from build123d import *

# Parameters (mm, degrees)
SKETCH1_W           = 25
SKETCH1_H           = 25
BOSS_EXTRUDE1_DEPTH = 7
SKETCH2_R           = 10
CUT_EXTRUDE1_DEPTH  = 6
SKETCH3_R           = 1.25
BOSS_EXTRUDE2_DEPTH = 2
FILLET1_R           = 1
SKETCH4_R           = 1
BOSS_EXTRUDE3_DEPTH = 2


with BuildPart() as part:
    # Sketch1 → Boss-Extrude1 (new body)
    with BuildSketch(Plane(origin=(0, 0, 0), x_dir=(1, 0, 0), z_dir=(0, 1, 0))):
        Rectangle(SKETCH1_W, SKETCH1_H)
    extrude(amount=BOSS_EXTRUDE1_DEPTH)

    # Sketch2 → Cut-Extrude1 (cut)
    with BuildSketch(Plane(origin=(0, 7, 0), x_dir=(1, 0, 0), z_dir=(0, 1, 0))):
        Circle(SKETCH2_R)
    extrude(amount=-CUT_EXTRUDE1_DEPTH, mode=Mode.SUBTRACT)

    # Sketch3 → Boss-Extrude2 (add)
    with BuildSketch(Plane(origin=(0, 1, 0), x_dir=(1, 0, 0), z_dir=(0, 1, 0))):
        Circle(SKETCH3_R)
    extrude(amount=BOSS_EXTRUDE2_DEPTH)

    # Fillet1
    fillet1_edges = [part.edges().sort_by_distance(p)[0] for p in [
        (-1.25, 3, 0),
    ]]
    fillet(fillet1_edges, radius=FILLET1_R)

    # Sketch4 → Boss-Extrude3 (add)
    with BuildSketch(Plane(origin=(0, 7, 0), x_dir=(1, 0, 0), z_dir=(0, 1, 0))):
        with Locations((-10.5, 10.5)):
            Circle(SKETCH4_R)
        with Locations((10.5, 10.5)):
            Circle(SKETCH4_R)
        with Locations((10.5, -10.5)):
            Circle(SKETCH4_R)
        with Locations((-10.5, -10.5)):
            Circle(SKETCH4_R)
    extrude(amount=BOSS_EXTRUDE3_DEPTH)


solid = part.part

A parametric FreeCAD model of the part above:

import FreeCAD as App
import Part
import Sketcher
from FreeCAD import Vector
Q = App.Units.Quantity


def edges_at(feature, points):
    """Names of the edges that pass closest to the given points."""
    edges = feature.Shape.Edges
    near = lambda p: min(range(len(edges)), key=lambda i: edges[i].distToShape(Part.Vertex(*p))[0])
    return sorted({f"Edge{near(p) + 1}" for p in points})

doc = App.newDocument("Part")
body = doc.addObject("PartDesign::Body", "Body")

sketch1 = doc.addObject("Sketcher::SketchObject", "Sketch")
body.addObject(sketch1)
sketch1.AttachmentSupport = (doc.XZ_Plane, [""])
sketch1.MapMode = "FlatFace"
sketch1.addGeometry([
    Part.LineSegment(Vector(-12, -12, 0), Vector(-12, 12, 0)),
    Part.LineSegment(Vector(-12, 12, 0), Vector(12, 12, 0)),
    Part.LineSegment(Vector(12, 12, 0), Vector(12, -12, 0)),
    Part.LineSegment(Vector(12, -12, 0), Vector(-12, -12, 0)),
], False)
sketch1.addConstraint([
    Sketcher.Constraint("Coincident", 0, 2, 1, 1),
    Sketcher.Constraint("Coincident", 1, 2, 2, 1),
    Sketcher.Constraint("Coincident", 2, 2, 3, 1),
    Sketcher.Constraint("Coincident", 3, 2, 0, 1),
    Sketcher.Constraint("Vertical", 0),
    Sketcher.Constraint("Horizontal", 1),
    Sketcher.Constraint("Vertical", 2),
    Sketcher.Constraint("Horizontal", 3),
    Sketcher.Constraint("Symmetric", 0, 2, 2, 2, -1, 1),
    Sketcher.Constraint("Equal", 3, 0),
    Sketcher.Constraint("DistanceX", 1, 1, 1, 2, Q("25 mm")),
])
pad1 = doc.addObject("PartDesign::Pad", "Pad")
body.addObject(pad1)
pad1.Profile = sketch1
pad1.Length = 7
pad1.Reversed = True

sketch2 = doc.addObject("Sketcher::SketchObject", "Sketch001")
body.addObject(sketch2)
sketch2.AttachmentSupport = (doc.XZ_Plane, [""])
sketch2.MapMode = "FlatFace"
sketch2.AttachmentOffset = App.Placement(Vector(0, 0, -7), App.Rotation())
sketch2.addGeometry(Part.Circle(Vector(0, 0, 0), Vector(0, 0, 1), 10), False)
sketch2.addConstraint([
    Sketcher.Constraint("Coincident", 0, 3, -1, 1),
    Sketcher.Constraint("Diameter", 0, Q("20 mm")),
])
pocket1 = doc.addObject("PartDesign::Pocket", "Pocket")
body.addObject(pocket1)
pocket1.Profile = sketch2
pocket1.Length = 6
pocket1.Reversed = True

sketch3 = doc.addObject("Sketcher::SketchObject", "Sketch002")
body.addObject(sketch3)
sketch3.AttachmentSupport = (doc.XZ_Plane, [""])
sketch3.MapMode = "FlatFace"
sketch3.AttachmentOffset = App.Placement(Vector(0, 0, -1), App.Rotation())
sketch3.addGeometry(Part.Circle(Vector(0, 0, 0), Vector(0, 0, 1), 1.2), False)
sketch3.addConstraint([
    Sketcher.Constraint("Coincident", 0, 3, -1, 1),
    Sketcher.Constraint("Diameter", 0, Q("2.5 mm")),
])
pad2 = doc.addObject("PartDesign::Pad", "Pad001")
body.addObject(pad2)
pad2.Profile = sketch3
pad2.Length = 2
pad2.Reversed = True
doc.recompute()

fillet = doc.addObject("PartDesign::Fillet", "Fillet")
body.addObject(fillet)
fillet.Base = (pad2, edges_at(pad2, [(-1.25, 3, 0)]))
fillet.Radius = 1

sketch4 = doc.addObject("Sketcher::SketchObject", "Sketch003")
body.addObject(sketch4)
sketch4.AttachmentSupport = (doc.XZ_Plane, [""])
sketch4.MapMode = "FlatFace"
sketch4.AttachmentOffset = App.Placement(Vector(0, 0, -7), App.Rotation())
sketch4.addGeometry([
    Part.Circle(Vector(-10.5, -10.5, 0), Vector(0, 0, 1), 1),
    Part.Circle(Vector(10.5, -10.5, 0), Vector(0, 0, 1), 1),
    Part.Circle(Vector(10.5, 10.5, 0), Vector(0, 0, 1), 1),
    Part.Circle(Vector(-10.5, 10.5, 0), Vector(0, 0, 1), 1),
], False)
sketch4.addConstraint([
    Sketcher.Constraint("Equal", 0, 1),
    Sketcher.Constraint("Equal", 1, 2),
    Sketcher.Constraint("Equal", 2, 3),
    Sketcher.Constraint("Symmetric", 0, 3, 2, 3, -1, 1),
    Sketcher.Constraint("Symmetric", 1, 3, 3, 3, -1, 1),
    Sketcher.Constraint("Symmetric", 0, 3, 1, 3, -2),
    Sketcher.Constraint("Diameter", 0, Q("2 mm")),
    Sketcher.Constraint("DistanceX", 0, 3, 1, 3, Q("21 mm")),
    Sketcher.Constraint("DistanceY", 1, 3, 2, 3, Q("21 mm")),
])
pad3 = doc.addObject("PartDesign::Pad", "Pad002")
body.addObject(pad3)
pad3.Profile = sketch4
pad3.Length = 2
pad3.Reversed = True

doc.recompute()
